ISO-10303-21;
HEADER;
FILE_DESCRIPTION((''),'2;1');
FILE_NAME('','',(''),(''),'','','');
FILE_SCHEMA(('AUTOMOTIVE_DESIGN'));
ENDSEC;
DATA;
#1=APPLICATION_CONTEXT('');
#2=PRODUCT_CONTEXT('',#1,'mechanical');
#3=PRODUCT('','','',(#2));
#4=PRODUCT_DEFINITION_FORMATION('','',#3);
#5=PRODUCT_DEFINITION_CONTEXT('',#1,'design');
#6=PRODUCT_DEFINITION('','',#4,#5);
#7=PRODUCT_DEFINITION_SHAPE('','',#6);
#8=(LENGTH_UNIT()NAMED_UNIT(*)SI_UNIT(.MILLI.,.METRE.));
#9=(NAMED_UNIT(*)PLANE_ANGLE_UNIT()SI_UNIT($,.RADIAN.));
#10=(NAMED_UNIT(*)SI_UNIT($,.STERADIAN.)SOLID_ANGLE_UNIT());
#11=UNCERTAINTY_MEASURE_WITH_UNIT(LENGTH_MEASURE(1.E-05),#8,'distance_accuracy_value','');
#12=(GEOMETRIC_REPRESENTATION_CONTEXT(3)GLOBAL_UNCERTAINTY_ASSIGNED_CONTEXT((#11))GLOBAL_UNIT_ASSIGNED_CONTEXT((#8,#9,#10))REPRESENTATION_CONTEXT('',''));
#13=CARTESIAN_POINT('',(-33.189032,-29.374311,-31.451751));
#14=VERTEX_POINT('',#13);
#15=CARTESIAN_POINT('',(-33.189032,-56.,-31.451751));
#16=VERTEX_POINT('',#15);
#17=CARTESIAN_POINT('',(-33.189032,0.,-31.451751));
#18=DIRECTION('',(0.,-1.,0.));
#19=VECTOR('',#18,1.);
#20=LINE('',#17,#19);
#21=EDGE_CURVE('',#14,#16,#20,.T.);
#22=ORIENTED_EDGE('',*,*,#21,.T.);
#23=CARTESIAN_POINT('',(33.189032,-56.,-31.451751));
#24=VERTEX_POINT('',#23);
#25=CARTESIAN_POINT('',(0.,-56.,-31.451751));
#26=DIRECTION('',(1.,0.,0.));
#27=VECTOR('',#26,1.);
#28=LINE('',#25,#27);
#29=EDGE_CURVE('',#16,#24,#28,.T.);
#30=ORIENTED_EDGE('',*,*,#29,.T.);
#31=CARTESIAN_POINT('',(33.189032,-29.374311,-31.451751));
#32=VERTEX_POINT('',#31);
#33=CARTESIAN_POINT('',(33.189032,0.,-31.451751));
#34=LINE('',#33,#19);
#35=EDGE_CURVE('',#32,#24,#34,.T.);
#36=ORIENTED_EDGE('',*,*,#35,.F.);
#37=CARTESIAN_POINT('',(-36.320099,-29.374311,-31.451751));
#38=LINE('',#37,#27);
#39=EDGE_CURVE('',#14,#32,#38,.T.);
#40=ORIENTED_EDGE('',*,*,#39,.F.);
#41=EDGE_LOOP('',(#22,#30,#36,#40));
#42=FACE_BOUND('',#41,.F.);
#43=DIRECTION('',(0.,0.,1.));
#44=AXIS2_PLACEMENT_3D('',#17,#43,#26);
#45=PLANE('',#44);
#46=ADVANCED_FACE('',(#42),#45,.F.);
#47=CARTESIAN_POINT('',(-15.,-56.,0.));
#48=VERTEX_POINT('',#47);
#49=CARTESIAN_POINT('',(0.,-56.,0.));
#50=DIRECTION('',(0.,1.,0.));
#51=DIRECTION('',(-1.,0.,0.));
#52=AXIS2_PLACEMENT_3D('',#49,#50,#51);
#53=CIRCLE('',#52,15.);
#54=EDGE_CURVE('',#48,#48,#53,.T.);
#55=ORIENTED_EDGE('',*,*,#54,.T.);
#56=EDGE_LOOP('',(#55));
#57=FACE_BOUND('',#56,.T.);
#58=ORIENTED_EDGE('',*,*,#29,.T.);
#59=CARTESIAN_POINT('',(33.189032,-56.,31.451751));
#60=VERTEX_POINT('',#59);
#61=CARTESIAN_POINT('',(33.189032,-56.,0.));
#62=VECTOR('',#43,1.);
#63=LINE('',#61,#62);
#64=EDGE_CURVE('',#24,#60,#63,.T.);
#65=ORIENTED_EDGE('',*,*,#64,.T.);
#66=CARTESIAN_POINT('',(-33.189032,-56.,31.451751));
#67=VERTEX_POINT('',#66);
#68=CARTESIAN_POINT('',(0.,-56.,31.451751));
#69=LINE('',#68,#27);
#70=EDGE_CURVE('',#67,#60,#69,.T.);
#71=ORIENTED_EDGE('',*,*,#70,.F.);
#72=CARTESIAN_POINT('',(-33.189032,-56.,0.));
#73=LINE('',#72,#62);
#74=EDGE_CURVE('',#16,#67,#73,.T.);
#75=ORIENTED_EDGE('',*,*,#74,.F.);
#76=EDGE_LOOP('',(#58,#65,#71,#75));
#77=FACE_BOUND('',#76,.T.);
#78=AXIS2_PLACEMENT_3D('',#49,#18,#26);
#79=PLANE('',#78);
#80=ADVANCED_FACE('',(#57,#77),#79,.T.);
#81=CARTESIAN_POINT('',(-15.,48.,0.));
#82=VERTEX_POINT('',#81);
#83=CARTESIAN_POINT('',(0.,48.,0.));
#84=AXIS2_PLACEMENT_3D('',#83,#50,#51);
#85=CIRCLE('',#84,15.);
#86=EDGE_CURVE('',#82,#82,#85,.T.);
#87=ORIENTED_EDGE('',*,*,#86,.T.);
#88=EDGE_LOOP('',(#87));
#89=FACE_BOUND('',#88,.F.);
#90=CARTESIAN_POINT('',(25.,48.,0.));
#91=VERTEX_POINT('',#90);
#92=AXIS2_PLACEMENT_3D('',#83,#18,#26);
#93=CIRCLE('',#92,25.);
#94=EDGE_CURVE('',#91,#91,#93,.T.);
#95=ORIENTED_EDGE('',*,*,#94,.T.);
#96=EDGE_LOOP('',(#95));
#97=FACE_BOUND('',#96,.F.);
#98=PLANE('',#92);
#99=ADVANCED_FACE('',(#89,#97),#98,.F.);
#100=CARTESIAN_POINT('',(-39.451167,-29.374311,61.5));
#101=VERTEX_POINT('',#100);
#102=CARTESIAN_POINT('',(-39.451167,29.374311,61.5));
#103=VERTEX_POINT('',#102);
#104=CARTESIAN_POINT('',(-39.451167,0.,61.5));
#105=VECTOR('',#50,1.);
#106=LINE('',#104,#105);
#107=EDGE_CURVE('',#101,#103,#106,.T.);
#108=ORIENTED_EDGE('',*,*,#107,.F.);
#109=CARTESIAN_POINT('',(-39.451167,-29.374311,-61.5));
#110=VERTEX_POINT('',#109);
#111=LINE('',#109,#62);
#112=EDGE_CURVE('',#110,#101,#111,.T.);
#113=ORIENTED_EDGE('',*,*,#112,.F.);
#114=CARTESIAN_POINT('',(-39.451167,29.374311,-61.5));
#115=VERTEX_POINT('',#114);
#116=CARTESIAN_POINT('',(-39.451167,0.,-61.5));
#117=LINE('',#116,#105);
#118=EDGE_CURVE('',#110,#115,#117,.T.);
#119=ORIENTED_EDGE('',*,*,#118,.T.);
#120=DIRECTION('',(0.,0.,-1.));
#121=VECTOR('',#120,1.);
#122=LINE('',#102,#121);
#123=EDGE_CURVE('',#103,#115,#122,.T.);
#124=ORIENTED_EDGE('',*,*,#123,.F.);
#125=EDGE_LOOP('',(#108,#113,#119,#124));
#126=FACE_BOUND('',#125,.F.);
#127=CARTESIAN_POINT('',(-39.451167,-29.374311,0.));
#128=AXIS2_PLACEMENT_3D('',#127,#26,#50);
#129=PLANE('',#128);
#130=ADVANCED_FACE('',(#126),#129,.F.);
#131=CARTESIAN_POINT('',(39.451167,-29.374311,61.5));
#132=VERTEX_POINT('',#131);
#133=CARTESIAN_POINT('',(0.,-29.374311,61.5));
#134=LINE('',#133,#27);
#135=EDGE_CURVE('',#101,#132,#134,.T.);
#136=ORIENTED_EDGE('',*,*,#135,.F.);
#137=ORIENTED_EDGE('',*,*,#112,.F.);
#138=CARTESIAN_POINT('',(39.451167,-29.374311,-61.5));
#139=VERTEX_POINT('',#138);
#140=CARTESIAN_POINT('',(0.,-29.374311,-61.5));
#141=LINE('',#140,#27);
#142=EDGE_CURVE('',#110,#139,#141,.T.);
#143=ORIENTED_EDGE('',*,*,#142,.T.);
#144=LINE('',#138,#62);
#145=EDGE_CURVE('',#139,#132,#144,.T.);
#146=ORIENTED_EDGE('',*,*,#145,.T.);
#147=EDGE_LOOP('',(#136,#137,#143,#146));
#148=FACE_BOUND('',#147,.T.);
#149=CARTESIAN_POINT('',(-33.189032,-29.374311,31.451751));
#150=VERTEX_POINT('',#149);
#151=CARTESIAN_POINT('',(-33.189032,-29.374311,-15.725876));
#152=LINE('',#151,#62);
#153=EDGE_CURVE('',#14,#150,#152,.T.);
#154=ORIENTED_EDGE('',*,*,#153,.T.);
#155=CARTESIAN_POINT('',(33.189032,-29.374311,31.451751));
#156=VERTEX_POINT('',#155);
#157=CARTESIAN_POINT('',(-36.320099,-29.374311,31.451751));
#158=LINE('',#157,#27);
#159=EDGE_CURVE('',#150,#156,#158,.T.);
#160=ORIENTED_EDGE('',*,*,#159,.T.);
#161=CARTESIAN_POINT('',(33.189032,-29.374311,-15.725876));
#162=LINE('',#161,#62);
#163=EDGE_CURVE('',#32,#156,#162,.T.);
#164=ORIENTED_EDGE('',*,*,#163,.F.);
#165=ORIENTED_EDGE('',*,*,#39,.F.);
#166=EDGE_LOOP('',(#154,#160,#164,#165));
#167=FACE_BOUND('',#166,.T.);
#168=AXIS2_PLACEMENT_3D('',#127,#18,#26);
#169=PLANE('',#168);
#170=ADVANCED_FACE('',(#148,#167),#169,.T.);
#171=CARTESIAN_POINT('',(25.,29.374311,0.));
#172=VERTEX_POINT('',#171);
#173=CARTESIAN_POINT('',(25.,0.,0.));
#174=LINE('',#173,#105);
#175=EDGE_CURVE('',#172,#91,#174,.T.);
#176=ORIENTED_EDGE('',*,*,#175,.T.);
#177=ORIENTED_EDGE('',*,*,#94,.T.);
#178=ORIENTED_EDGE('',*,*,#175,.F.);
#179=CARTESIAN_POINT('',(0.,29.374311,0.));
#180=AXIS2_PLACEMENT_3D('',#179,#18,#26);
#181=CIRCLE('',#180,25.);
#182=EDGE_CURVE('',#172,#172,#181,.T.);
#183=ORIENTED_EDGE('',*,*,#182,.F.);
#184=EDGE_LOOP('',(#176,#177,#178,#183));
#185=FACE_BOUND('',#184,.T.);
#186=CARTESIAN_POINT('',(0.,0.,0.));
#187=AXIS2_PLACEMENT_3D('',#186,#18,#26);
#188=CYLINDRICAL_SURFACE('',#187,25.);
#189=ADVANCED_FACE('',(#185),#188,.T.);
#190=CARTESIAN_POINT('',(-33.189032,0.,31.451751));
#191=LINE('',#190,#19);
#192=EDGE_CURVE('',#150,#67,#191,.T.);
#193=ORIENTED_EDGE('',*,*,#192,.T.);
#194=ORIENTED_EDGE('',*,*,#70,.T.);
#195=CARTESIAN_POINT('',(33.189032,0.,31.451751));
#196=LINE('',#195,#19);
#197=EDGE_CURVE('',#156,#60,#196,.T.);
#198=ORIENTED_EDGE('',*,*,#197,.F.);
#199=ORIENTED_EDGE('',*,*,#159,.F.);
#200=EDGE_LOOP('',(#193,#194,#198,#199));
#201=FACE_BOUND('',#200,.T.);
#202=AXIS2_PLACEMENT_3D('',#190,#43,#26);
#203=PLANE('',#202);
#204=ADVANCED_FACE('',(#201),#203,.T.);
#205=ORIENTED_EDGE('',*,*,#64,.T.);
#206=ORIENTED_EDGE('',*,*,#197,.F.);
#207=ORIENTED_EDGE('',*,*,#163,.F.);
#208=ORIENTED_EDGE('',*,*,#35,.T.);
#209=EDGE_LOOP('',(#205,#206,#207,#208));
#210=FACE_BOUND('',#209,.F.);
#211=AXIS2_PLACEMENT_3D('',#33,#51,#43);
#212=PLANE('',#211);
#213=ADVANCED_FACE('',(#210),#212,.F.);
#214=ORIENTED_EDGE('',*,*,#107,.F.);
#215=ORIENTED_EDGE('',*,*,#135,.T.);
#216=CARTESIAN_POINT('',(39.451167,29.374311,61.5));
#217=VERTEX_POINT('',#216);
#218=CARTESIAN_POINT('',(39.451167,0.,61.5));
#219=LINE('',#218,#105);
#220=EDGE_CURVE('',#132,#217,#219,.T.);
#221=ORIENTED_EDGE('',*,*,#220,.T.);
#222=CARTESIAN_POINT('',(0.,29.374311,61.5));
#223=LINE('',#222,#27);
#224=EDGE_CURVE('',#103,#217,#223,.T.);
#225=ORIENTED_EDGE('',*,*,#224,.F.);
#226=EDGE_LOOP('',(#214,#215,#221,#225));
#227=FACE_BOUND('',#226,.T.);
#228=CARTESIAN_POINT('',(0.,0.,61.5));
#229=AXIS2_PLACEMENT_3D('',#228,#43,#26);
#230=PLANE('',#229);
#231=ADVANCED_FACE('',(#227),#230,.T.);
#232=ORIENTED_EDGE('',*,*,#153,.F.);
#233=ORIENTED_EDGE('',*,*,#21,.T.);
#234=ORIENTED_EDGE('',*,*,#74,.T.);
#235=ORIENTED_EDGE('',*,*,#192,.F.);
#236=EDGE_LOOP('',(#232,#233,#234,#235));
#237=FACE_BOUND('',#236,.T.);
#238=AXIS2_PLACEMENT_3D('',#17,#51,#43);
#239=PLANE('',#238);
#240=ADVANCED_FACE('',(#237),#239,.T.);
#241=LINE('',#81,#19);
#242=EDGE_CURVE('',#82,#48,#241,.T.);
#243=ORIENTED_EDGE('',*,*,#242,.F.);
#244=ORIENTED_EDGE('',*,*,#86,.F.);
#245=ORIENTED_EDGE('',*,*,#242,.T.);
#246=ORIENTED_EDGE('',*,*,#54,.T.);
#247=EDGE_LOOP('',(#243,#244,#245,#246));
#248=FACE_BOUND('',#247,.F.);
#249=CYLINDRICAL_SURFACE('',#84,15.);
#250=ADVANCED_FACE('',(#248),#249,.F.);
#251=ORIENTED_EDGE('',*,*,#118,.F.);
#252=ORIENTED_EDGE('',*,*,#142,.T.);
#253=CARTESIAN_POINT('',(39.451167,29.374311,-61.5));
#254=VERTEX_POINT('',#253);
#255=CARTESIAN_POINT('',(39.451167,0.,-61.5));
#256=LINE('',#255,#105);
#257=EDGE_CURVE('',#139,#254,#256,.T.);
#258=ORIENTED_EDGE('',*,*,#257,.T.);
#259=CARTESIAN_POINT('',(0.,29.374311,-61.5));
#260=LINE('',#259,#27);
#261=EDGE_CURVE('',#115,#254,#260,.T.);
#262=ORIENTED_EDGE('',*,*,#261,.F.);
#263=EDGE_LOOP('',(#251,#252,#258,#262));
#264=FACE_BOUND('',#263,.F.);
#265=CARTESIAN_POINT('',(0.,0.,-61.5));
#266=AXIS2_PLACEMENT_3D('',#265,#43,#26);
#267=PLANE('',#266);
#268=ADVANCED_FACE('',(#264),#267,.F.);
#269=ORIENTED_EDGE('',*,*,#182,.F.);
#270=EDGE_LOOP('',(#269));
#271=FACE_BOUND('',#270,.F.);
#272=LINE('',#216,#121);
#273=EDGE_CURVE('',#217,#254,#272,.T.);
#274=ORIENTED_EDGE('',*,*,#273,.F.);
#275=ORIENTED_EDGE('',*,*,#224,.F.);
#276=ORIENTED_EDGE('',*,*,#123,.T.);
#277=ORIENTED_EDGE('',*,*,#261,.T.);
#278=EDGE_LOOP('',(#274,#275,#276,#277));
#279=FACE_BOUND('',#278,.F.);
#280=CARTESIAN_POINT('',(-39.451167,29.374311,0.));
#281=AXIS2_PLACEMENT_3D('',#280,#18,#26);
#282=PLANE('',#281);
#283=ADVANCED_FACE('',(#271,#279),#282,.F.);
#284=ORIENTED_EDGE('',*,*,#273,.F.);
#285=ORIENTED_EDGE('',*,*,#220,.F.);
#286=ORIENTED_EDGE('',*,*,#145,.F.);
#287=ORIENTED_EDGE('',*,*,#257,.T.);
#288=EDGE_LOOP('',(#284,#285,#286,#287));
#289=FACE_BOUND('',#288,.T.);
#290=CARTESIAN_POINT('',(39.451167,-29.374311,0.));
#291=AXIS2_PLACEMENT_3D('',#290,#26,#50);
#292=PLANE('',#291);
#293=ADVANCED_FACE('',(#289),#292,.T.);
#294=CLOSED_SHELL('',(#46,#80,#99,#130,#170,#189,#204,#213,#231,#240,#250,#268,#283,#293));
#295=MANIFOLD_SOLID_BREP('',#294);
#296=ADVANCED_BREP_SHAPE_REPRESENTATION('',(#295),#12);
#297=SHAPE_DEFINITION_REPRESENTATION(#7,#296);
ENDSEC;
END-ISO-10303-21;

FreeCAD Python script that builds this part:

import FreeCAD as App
import Part
import Sketcher

V = App.Vector


def add_polygon(sketch, points):
    """Adds a closed chain of lines whose ends are joined by coincident constraints."""
    first, n = sketch.GeometryCount, len(points)
    for a, b in zip(points, points[1:] + points[:1]):
        sketch.addGeometry(Part.LineSegment(App.Vector(*a, 0), App.Vector(*b, 0)), False)
    for i in range(n):
        sketch.addConstraint(Sketcher.Constraint("Coincident", first + i, 2, first + (i + 1) % n, 1))

doc = App.newDocument("Part")
body = doc.addObject("PartDesign::Body", "Body")

sketch1 = body.newObject("Sketcher::SketchObject", "Sketch")
sketch1.AttachmentSupport = (doc.getObject("XZ_Plane"), [""])
sketch1.MapMode = "FlatFace"
sketch1.addGeometry(Part.Circle(V(0, 0, 0), V(0, 0, 1), 25), False)
sketch1.addConstraint([
    Sketcher.Constraint("Coincident", 0, 3, -1, 1),
    Sketcher.Constraint("Diameter", 0, 50.0),
])
pad1 = body.newObject("PartDesign::Pad", "Pad")
pad1.Profile = sketch1
pad1.Length = 48
pad1.Reversed = True

sketch2 = body.newObject("Sketcher::SketchObject", "Sketch001")
sketch2.AttachmentSupport = (doc.getObject("XZ_Plane"), [""])
sketch2.MapMode = "FlatFace"
add_polygon(sketch2, [(-33, 31), (-33, -31), (33, -31), (33, 31)])
sketch2.addConstraint([
    Sketcher.Constraint("Vertical", 0),
    Sketcher.Constraint("Horizontal", 1),
    Sketcher.Constraint("Vertical", 2),
    Sketcher.Constraint("Horizontal", 3),
    Sketcher.Constraint("Symmetric", 0, 2, 2, 2, -1, 1),
    Sketcher.Constraint("DistanceX", 1, 1, 1, 2, 66.378064),
    Sketcher.Constraint("DistanceY", 0, 2, 0, 1, 62.903502),
])
pad2 = body.newObject("PartDesign::Pad", "Pad001")
pad2.Profile = sketch2
pad2.Length = 56

sketch3 = body.newObject("Sketcher::SketchObject", "Sketch002")
sketch3.AttachmentSupport = (doc.getObject("XY_Plane"), [""])
sketch3.MapMode = "FlatFace"
add_polygon(sketch3, [(-39, 29), (-39, -29), (39, -29), (39, 29)])
sketch3.addConstraint([
    Sketcher.Constraint("Vertical", 0),
    Sketcher.Constraint("Horizontal", 1),
    Sketcher.Constraint("Vertical", 2),
    Sketcher.Constraint("Horizontal", 3),
    Sketcher.Constraint("Symmetric", 0, 2, 2, 2, -1, 1),
    Sketcher.Constraint("DistanceY", 0, 2, 0, 1, 58.748622),
    Sketcher.Constraint("DistanceX", 1, 1, 1, 2, 78.902334),
])
pad3 = body.newObject("PartDesign::Pad", "Pad002")
pad3.Profile = sketch3
pad3.Length = 123
pad3.Midplane = True

sketch4 = body.newObject("Sketcher::SketchObject", "Sketch003")
sketch4.AttachmentSupport = (doc.getObject("XZ_Plane"), [""])
sketch4.MapMode = "FlatFace"
sketch4.AttachmentOffset = App.Placement(V(0, 0, -48), App.Rotation())
sketch4.addGeometry(Part.Circle(V(0, 0, 0), V(0, 0, 1), 15), False)
sketch4.addConstraint([
    Sketcher.Constraint("Coincident", 0, 3, -1, 1),
    Sketcher.Constraint("Diameter", 0, 30.0),
])
pocket1 = body.newObject("PartDesign::Pocket", "Pocket")
pocket1.Profile = sketch4
pocket1.Length = 105.3
pocket1.Reversed = True

doc.recompute()
